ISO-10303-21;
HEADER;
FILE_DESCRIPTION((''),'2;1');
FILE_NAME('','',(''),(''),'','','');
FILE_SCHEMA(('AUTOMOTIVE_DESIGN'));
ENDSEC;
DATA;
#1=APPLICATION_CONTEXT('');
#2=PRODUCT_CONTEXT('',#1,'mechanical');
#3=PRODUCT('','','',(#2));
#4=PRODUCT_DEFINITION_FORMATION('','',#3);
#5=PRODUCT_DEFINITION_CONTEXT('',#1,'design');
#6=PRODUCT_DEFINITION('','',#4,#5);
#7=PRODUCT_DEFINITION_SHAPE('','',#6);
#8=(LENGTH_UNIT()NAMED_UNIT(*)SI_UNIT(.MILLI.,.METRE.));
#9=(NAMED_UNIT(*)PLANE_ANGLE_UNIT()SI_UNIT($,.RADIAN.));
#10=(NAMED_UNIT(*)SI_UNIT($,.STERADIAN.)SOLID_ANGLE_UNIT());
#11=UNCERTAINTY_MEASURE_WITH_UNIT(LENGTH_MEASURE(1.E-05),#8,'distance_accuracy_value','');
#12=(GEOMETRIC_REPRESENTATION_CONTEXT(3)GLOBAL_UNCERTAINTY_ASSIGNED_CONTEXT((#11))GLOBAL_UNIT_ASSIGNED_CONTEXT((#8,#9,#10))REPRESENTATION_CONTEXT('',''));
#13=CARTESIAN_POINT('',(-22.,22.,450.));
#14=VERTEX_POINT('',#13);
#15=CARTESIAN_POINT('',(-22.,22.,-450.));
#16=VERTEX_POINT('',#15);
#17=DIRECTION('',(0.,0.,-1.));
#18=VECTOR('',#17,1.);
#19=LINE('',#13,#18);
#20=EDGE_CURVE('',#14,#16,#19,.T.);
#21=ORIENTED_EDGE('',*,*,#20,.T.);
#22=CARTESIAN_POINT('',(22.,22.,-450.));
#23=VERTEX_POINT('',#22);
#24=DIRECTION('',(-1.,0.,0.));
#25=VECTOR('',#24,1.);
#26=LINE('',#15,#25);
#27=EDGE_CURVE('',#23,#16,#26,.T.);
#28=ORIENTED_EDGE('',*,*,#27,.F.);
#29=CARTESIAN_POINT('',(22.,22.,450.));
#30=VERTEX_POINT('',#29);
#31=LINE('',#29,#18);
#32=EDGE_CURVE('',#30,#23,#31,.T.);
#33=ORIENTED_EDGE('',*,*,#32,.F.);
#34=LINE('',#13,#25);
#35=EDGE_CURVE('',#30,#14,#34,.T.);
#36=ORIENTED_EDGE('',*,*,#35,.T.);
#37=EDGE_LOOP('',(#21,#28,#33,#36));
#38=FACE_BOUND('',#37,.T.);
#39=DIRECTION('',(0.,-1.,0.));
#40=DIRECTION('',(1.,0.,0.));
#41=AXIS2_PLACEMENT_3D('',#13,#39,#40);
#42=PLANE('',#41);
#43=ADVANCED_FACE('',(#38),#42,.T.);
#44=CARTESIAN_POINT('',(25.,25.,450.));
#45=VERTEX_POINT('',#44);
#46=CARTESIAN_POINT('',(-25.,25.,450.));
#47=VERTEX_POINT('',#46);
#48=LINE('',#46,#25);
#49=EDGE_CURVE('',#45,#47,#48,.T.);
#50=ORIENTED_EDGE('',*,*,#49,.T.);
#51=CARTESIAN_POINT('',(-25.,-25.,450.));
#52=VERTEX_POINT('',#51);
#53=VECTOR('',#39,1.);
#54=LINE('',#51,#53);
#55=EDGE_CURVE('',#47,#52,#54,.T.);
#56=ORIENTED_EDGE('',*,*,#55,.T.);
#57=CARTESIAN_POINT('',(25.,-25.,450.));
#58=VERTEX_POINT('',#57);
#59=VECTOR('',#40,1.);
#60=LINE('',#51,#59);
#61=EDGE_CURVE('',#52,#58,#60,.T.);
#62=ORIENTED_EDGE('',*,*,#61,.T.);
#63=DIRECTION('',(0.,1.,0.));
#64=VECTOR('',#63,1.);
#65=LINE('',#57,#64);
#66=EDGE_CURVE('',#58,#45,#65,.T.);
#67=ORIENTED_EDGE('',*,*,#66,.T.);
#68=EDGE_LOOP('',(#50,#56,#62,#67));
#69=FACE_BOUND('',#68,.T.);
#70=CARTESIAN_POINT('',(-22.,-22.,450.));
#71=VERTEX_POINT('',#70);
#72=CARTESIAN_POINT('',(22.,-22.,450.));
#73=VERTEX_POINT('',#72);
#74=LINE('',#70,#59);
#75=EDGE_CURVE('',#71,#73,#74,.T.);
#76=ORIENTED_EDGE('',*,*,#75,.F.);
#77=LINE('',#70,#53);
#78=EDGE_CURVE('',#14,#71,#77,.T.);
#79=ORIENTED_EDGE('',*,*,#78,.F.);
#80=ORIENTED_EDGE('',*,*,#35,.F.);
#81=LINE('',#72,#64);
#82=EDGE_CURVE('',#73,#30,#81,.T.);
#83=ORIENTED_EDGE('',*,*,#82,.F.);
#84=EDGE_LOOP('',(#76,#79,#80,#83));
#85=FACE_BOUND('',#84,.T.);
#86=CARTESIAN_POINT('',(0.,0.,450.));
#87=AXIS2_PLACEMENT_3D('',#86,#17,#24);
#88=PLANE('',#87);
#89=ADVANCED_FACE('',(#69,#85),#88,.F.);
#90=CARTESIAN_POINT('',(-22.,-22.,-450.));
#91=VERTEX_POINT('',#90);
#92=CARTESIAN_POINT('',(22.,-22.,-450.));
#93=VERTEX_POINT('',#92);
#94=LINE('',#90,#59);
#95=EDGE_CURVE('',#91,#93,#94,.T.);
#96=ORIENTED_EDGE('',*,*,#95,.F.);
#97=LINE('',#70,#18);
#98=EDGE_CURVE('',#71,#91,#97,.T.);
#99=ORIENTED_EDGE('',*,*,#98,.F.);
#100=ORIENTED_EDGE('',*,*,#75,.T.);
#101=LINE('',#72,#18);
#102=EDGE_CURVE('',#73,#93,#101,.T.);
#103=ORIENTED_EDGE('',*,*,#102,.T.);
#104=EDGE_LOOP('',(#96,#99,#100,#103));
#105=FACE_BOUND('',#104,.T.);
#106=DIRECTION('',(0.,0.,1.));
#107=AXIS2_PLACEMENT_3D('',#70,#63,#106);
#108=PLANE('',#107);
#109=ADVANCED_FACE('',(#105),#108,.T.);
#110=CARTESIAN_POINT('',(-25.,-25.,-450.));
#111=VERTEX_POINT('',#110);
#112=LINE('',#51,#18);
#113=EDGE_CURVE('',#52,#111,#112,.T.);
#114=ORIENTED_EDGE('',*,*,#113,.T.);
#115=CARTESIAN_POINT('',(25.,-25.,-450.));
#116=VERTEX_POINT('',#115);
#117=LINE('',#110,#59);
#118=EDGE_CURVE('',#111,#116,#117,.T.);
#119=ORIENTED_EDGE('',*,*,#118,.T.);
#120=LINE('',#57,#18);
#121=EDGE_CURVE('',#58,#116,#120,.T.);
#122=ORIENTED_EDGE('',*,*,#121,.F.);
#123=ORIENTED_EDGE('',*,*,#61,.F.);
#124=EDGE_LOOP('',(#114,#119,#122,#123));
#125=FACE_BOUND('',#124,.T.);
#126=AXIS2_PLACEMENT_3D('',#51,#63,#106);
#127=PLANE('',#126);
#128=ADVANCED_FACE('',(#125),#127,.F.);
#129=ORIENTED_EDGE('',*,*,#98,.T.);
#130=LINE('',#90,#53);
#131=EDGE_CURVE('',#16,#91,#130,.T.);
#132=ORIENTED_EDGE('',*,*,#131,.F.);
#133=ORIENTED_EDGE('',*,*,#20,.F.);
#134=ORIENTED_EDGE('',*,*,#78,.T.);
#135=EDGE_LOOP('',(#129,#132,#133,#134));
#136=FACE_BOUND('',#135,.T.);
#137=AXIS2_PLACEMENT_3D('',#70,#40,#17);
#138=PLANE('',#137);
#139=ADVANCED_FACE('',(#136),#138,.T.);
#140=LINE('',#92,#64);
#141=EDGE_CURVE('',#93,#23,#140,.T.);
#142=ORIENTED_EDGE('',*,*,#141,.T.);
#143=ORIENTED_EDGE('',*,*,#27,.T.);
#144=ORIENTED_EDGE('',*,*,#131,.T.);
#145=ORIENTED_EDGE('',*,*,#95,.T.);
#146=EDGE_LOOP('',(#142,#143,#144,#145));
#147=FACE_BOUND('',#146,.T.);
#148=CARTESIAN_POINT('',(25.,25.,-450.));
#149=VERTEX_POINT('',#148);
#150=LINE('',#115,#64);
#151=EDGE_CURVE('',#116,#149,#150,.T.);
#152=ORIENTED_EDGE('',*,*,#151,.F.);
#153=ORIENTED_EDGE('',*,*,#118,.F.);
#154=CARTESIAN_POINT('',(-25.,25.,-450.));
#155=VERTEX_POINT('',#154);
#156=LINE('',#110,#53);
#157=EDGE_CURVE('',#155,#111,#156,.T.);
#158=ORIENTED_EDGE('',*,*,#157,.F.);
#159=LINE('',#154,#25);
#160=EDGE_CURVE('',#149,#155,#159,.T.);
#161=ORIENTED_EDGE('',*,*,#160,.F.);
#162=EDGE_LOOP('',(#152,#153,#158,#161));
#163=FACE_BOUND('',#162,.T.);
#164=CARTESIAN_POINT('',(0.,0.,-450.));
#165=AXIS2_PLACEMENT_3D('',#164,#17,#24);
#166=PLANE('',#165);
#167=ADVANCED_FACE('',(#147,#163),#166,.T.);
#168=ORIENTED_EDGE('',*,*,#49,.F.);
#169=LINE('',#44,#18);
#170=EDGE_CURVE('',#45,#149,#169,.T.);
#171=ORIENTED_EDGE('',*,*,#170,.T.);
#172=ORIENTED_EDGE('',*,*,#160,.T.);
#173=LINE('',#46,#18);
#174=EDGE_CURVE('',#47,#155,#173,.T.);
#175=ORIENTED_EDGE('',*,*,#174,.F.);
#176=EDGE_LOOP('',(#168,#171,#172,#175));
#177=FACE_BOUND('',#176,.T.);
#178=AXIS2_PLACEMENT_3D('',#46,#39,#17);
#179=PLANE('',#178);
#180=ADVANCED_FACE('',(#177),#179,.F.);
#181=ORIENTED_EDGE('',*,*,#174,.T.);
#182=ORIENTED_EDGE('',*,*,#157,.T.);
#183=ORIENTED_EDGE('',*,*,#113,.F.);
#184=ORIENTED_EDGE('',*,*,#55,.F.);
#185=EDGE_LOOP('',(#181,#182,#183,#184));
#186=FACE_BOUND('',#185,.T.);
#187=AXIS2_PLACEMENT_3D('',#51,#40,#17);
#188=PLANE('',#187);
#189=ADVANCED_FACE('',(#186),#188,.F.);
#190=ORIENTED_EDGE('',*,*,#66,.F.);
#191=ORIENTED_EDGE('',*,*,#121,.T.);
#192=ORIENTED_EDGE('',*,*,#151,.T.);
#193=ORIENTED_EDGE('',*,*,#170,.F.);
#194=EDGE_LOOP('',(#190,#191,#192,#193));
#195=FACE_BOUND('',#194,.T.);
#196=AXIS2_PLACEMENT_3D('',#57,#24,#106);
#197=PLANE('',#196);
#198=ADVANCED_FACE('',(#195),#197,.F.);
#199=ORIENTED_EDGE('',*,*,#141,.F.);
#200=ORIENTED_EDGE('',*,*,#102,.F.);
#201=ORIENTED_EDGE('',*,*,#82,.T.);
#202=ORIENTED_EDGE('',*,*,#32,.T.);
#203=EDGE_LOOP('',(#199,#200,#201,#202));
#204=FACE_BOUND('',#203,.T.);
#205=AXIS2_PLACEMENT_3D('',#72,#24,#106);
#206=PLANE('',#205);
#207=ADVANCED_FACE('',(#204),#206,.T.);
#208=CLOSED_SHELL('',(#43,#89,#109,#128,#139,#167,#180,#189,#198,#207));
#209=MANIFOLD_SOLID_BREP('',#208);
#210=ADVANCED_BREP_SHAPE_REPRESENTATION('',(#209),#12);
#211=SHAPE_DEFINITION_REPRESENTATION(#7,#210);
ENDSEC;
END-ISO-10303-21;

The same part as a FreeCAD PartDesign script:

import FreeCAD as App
import Part
import Sketcher
from FreeCAD import Vector


def add_polygon(sketch, points):
    """Adds a closed chain of lines whose ends are joined by coincident constraints."""
    first, n = sketch.GeometryCount, len(points)
    for a, b in zip(points, points[1:] + points[:1]):
        sketch.addGeometry(Part.LineSegment(App.Vector(*a, 0), App.Vector(*b, 0)), False)
    for i in range(n):
        sketch.addConstraint(Sketcher.Constraint("Coincident", first + i, 2, first + (i + 1) % n, 1))

doc = App.newDocument("Part")
params = doc.addObject("Spreadsheet::Sheet", "Params")
for row, (alias, value) in enumerate([
    ("sketch1_width", "50 mm"),
    ("sketch1_width2", "44 mm"),
    ("pad1_length", "900 mm"),
], start=1):
    params.set(f"A{row}", alias)
    params.set(f"B{row}", "=" + value)
    params.setAlias(f"B{row}", alias)

body = doc.addObject("PartDesign::Body", "Body")

sketch1 = body.newObject("Sketcher::SketchObject", "Sketch")
sketch1.AttachmentSupport = (doc.getObject("XY_Plane"), [""])
sketch1.MapMode = "FlatFace"
add_polygon(sketch1, [(-25, 25), (-25, -25), (25, -25), (25, 25)])
add_polygon(sketch1, [(22, -22), (-22, -22), (-22, 22), (22, 22)])
sketch1.addConstraint([
    Sketcher.Constraint("Vertical", 0),
    Sketcher.Constraint("Horizontal", 1),
    Sketcher.Constraint("Vertical", 2),
    Sketcher.Constraint("Horizontal", 3),
    Sketcher.Constraint("Horizontal", 4),
    Sketcher.Constraint("Vertical", 5),
    Sketcher.Constraint("Horizontal", 6),
    Sketcher.Constraint("Vertical", 7),
    Sketcher.Constraint("Symmetric", 0, 2, 2, 2, -1, 1),
    Sketcher.Constraint("Symmetric", 4, 2, 6, 2, -1, 1),
    Sketcher.Constraint("Equal", 3, 0),
    Sketcher.Constraint("Equal", 6, 5),
    Sketcher.Constraint("DistanceX", 1, 1, 1, 2, 50.0),
    Sketcher.Constraint("DistanceX", 4, 2, 4, 1, 44.0),
])
sketch1.setExpression("Constraints[20]", "Params.sketch1_width")
sketch1.setExpression("Constraints[21]", "Params.sketch1_width2")
pad1 = body.newObject("PartDesign::Pad", "Pad")
pad1.Profile = sketch1
pad1.setExpression("Length", "Params.pad1_length")
pad1.Midplane = True

doc.recompute()
